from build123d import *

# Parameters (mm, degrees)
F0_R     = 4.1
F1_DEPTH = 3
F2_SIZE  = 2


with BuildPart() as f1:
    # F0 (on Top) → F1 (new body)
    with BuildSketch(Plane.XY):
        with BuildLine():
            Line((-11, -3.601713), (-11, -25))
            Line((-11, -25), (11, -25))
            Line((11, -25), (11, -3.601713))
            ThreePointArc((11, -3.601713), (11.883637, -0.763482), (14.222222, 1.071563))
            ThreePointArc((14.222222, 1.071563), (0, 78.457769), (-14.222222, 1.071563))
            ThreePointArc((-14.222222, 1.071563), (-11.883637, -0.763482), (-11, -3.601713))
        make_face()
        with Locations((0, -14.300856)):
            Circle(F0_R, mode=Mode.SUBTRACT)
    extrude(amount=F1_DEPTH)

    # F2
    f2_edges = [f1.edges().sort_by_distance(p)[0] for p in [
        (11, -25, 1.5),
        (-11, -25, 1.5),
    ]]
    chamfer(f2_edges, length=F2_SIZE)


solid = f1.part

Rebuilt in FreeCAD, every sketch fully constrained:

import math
import FreeCAD as App
import Part
import Sketcher
Q = App.Units.Quantity


def edges_at(feature, points):
    """Names of the edges that pass closest to the given points."""
    edges = feature.Shape.Edges
    near = lambda p: min(range(len(edges)), key=lambda i: edges[i].distToShape(Part.Vertex(*p))[0])
    return sorted({f"Edge{near(p) + 1}" for p in points})

doc = App.newDocument("Part")
body = doc.addObject("PartDesign::Body", "Body")

sketch1 = doc.addObject("Sketcher::SketchObject", "Sketch")
body.addObject(sketch1)
sketch1.AttachmentSupport = (doc.XY_Plane, [""])
sketch1.MapMode = "FlatFace"
sketch1.addGeometry([
    Part.LineSegment(App.Vector(-11, -3.6, 0), App.Vector(-11, -25, 0)),
    Part.LineSegment(App.Vector(-11, -25, 0), App.Vector(11, -25, 0)),
    Part.LineSegment(App.Vector(11, -25, 0), App.Vector(11, -3.6, 0)),
    Part.ArcOfCircle(Part.Circle(App.Vector(16, -3.6, 0), App.Vector(0, 0, 1), 5), math.radians(111), math.radians(180)),
    Part.ArcOfCircle(Part.Circle(App.Vector(0, 38.5, 0), App.Vector(0, 0, 1), 40), math.radians(-69), math.radians(249)),
    Part.ArcOfCircle(Part.Circle(App.Vector(-16, -3.6, 0), App.Vector(0, 0, 1), 5), math.radians(0), math.radians(69)),
    Part.Circle(App.Vector(0, -14.3, 0), App.Vector(0, 0, 1), 4.1),
], False)
sketch1.addConstraint([
    Sketcher.Constraint("Coincident", 0, 2, 1, 1),
    Sketcher.Constraint("Coincident", 1, 2, 2, 1),
    Sketcher.Constraint("Tangent", 2, 2, 3, 2),
    Sketcher.Constraint("Tangent", 3, 1, 4, 1),
    Sketcher.Constraint("Tangent", 4, 2, 5, 2),
    Sketcher.Constraint("Tangent", 5, 1, 0, 1),
    Sketcher.Constraint("Vertical", 0),
    Sketcher.Constraint("Horizontal", 1),
    Sketcher.Constraint("Vertical", 2),
    Sketcher.Constraint("Equal", 3, 5),
    Sketcher.Constraint("Symmetric", 3, 3, 5, 3, -2),
    Sketcher.Constraint("PointOnObject", 6, 3, -2),
    Sketcher.Constraint("Radius", 3, Q("5.000001 mm")),
    Sketcher.Constraint("Radius", 4, Q("40 mm")),
    Sketcher.Constraint("Diameter", 6, Q("8.2 mm")),
    Sketcher.Constraint("DistanceX", 1, 1, 1, 2, Q("22 mm")),
    Sketcher.Constraint("DistanceY", 0, 2, -1, 1, Q("25 mm")),
    Sketcher.Constraint("DistanceY", 0, 2, 0, 1, Q("21.398287 mm")),
    Sketcher.Constraint("DistanceY", 6, 3, 3, 1, Q("15.372419 mm")),
])
pad1 = doc.addObject("PartDesign::Pad", "Pad")
body.addObject(pad1)
pad1.Profile = sketch1
pad1.Length = 3
doc.recompute()

chamfer = doc.addObject("PartDesign::Chamfer", "Chamfer")
body.addObject(chamfer)
chamfer.Base = (pad1, edges_at(pad1, [(11, -25, 1.5), (-11, -25, 1.5)]))
chamfer.Size = 2

doc.recompute()
